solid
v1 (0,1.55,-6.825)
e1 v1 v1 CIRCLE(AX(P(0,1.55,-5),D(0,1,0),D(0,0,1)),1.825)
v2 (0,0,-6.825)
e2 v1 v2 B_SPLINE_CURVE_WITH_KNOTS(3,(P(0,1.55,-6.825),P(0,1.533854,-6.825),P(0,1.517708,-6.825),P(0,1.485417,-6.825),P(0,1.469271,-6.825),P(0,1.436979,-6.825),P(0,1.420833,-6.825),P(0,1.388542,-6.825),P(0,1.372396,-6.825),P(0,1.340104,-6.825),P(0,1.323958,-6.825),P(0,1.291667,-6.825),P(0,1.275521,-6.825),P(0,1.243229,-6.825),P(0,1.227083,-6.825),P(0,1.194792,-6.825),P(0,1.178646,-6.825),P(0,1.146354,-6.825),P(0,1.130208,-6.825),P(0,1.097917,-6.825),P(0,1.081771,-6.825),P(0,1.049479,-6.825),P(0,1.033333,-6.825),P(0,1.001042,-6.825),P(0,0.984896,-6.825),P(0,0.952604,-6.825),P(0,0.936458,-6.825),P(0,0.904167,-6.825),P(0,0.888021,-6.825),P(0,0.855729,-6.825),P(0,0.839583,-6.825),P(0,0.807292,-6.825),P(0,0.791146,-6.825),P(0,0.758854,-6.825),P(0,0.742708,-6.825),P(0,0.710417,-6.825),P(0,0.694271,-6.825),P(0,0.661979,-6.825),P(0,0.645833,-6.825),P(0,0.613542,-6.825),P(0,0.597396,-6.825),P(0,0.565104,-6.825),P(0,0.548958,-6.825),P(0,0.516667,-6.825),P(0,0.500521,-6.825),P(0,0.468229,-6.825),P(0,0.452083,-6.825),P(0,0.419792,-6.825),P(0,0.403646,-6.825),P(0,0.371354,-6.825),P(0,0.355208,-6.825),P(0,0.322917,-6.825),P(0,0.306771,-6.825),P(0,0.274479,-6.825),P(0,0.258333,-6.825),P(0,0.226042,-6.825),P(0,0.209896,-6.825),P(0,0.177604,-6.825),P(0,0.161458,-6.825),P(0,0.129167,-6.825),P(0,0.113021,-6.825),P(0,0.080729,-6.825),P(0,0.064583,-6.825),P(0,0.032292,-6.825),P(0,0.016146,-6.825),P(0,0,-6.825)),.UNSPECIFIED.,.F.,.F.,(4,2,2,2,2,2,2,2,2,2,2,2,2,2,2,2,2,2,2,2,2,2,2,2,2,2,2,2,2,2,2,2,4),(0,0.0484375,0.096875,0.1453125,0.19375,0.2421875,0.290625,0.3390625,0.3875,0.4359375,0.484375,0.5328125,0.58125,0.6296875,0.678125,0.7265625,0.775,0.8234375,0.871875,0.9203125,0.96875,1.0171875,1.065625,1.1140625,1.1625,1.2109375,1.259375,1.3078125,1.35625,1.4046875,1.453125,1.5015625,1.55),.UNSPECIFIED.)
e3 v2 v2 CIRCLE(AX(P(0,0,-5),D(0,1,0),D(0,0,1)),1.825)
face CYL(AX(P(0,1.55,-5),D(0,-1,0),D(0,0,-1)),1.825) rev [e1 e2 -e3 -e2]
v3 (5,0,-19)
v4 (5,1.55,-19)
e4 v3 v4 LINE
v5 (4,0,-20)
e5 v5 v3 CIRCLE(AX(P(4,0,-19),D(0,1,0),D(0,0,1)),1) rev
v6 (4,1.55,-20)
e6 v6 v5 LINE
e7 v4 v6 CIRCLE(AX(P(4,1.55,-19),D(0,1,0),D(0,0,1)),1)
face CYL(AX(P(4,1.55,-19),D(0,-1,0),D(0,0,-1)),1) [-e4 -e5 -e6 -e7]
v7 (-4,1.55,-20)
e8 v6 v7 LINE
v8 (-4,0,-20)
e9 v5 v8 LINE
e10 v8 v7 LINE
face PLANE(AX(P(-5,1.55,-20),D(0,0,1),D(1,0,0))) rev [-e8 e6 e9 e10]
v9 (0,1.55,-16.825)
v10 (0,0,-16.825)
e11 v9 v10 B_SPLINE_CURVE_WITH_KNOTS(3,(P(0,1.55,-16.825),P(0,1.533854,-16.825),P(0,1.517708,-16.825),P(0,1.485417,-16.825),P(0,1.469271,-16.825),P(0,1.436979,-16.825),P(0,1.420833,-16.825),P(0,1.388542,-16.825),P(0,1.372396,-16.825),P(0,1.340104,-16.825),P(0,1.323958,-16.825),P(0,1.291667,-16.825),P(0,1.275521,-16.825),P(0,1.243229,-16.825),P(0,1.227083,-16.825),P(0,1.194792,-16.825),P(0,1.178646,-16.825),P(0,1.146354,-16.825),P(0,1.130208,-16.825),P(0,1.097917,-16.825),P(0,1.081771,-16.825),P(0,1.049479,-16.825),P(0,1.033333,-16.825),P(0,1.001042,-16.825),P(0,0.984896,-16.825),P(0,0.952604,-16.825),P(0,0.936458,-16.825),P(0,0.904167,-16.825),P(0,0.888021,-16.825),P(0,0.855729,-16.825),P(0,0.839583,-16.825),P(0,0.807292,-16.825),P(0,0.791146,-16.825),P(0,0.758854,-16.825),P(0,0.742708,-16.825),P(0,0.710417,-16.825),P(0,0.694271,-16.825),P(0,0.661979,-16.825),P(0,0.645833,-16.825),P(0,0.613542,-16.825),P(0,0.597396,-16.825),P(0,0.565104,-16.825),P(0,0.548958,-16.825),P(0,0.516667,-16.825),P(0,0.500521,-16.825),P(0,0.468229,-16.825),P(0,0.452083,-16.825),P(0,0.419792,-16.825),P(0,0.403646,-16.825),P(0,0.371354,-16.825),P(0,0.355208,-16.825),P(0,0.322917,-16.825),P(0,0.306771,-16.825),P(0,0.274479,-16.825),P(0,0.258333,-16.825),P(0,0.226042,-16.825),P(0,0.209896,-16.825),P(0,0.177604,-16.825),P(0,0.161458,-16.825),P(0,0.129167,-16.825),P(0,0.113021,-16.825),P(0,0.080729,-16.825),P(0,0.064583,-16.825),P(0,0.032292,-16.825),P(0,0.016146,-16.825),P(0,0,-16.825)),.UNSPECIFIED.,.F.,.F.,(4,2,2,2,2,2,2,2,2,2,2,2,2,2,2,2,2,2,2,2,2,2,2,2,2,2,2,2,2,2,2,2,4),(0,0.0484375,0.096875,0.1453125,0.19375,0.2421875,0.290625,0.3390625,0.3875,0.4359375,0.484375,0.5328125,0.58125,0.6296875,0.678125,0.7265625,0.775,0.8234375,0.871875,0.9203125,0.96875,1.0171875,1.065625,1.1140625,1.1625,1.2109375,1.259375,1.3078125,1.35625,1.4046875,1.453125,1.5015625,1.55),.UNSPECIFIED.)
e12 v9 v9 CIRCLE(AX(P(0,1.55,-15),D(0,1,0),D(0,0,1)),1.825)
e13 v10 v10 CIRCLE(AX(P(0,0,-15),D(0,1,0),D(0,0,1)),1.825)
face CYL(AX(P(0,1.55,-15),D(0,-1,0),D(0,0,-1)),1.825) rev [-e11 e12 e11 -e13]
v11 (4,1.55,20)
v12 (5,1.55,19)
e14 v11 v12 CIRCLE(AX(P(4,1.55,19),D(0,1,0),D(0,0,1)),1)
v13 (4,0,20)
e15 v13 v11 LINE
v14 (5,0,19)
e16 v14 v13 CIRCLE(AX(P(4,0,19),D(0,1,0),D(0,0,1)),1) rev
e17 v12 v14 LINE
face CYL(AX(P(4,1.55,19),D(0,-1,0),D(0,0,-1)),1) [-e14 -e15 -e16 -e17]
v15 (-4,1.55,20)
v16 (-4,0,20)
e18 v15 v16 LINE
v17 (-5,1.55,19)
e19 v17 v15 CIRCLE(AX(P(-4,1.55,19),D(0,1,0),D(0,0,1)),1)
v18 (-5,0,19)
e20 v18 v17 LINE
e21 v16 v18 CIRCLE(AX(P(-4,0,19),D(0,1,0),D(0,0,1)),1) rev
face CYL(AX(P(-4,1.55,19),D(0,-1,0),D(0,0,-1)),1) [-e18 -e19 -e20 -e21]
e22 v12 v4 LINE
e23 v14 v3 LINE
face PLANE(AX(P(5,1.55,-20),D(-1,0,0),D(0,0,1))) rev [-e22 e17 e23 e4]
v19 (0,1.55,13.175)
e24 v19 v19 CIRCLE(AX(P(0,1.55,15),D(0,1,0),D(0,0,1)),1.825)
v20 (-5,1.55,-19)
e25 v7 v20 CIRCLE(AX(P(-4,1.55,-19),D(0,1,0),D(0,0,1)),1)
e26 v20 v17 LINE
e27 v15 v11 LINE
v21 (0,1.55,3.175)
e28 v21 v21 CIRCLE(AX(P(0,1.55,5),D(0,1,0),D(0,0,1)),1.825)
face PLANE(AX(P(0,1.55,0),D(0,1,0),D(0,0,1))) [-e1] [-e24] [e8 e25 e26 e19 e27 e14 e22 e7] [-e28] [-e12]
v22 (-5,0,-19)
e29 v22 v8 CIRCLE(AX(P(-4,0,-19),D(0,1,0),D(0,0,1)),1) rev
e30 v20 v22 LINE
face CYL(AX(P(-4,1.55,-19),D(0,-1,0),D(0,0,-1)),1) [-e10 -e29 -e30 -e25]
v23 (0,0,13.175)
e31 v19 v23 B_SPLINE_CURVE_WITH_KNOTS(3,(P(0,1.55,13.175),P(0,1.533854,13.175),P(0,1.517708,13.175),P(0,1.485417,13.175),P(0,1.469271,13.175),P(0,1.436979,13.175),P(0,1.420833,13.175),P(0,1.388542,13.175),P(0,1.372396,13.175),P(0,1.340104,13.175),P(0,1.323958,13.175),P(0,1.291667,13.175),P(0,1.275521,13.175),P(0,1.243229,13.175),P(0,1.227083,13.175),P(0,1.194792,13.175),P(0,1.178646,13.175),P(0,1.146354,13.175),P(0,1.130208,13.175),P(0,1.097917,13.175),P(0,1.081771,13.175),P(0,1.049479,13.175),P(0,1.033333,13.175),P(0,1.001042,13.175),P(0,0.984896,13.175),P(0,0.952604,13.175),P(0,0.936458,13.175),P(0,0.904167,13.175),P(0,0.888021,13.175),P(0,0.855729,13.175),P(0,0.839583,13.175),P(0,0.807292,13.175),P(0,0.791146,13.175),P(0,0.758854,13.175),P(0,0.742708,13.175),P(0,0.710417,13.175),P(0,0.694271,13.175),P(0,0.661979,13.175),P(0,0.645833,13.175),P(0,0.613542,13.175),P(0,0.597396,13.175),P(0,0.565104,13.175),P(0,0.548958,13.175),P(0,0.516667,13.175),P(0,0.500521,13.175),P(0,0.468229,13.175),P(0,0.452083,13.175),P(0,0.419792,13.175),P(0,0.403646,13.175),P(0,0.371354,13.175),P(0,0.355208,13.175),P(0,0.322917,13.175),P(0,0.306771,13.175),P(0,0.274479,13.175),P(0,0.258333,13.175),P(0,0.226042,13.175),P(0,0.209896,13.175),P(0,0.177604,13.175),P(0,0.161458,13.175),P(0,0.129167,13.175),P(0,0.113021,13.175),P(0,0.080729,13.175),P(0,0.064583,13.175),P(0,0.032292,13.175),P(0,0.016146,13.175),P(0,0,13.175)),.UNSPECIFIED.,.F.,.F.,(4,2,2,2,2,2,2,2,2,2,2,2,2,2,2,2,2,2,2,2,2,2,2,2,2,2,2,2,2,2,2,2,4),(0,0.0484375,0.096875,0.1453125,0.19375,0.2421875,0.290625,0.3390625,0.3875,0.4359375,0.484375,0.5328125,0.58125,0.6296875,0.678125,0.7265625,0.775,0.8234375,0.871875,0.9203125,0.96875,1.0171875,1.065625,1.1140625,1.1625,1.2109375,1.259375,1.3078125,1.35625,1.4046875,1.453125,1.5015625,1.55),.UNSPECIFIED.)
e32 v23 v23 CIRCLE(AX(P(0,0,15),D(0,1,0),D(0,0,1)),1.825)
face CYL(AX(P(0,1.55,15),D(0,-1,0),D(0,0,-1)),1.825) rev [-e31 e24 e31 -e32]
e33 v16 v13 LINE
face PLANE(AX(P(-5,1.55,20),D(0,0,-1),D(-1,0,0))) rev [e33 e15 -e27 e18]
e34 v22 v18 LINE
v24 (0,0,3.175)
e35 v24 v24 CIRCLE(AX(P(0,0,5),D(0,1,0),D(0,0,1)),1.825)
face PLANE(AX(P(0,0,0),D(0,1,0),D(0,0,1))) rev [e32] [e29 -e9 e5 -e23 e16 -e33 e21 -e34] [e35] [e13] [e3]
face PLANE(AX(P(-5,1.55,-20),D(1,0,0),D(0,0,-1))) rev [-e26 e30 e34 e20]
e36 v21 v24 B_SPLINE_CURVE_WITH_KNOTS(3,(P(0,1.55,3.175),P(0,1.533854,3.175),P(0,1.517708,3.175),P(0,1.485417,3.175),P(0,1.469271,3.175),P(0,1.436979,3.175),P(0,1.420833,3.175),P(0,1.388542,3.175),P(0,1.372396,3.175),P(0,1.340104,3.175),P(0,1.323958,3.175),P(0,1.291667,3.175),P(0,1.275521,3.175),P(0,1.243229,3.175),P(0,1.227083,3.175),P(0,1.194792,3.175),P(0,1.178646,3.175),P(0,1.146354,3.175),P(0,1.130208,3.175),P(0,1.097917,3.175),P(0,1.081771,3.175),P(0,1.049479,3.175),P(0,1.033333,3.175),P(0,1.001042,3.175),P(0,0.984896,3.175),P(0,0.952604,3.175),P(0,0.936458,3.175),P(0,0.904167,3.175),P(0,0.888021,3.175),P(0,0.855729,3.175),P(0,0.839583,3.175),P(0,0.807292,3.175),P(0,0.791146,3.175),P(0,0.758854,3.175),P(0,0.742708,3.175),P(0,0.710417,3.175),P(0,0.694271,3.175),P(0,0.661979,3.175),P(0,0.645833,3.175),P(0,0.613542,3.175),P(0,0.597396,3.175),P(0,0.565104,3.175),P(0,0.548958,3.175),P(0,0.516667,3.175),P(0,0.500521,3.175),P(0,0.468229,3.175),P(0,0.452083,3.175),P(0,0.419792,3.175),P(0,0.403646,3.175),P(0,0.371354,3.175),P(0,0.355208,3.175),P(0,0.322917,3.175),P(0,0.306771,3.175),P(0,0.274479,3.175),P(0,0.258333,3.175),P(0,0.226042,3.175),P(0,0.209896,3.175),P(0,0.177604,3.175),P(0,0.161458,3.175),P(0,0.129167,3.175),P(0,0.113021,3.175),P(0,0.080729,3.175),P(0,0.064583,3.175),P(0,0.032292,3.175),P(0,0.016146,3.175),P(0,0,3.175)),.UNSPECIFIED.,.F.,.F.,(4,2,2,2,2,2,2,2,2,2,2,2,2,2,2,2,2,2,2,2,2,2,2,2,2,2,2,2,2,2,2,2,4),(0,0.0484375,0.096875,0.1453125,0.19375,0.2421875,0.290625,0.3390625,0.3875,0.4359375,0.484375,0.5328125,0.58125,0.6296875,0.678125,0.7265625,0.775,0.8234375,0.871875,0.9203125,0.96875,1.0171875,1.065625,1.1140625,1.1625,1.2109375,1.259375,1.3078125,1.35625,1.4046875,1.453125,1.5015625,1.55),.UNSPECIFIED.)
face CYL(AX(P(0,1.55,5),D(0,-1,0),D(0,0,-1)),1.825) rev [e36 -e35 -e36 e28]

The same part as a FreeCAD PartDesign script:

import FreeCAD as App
import Part
import Sketcher
from FreeCAD import Vector
Q = App.Units.Quantity


def edges_at(feature, points):
    """Names of the edges that pass closest to the given points."""
    edges = feature.Shape.Edges
    near = lambda p: min(range(len(edges)), key=lambda i: edges[i].distToShape(Part.Vertex(*p))[0])
    return sorted({f"Edge{near(p) + 1}" for p in points})

doc = App.newDocument("Part")
body = doc.addObject("PartDesign::Body", "Body")

# Sketch on XZ plane
sketch1 = body.newObject("Sketcher::SketchObject", "Sketch")
sketch1.AttachmentSupport = (doc.getObject("XZ_Plane"), [""])
sketch1.MapMode = "FlatFace"
sketch1.addGeometry([
    Part.LineSegment(Vector(-5, -20, 0), Vector(-5, 20, 0)),  # 0
    Part.LineSegment(Vector(-5, 20, 0), Vector(5, 20, 0)),  # 1
    Part.LineSegment(Vector(5, 20, 0), Vector(5, -20, 0)),  # 2
    Part.LineSegment(Vector(5, -20, 0), Vector(-5, -20, 0)),  # 3
    Part.Circle(Vector(0, 15, 0), Vector(0, 0, 1), 1.8),  # 4
    Part.Circle(Vector(0, 5, 0), Vector(0, 0, 1), 1.8),  # 5
    Part.Circle(Vector(0, -5, 0), Vector(0, 0, 1), 1.8),  # 6
    Part.Circle(Vector(0, -15, 0), Vector(0, 0, 1), 1.8),  # 7
], False)
sketch1.addConstraint([
    Sketcher.Constraint("Coincident", 0, 2, 1, 1),
    Sketcher.Constraint("Coincident", 1, 2, 2, 1),
    Sketcher.Constraint("Coincident", 2, 2, 3, 1),
    Sketcher.Constraint("Coincident", 3, 2, 0, 1),
    Sketcher.Constraint("Vertical", 0),
    Sketcher.Constraint("Horizontal", 1),
    Sketcher.Constraint("Vertical", 2),
    Sketcher.Constraint("Horizontal", 3),
    Sketcher.Constraint("Equal", 4, 5),
    Sketcher.Constraint("Equal", 5, 6),
    Sketcher.Constraint("Equal", 6, 7),
    Sketcher.Constraint("Symmetric", 5, 3, 6, 3, -1, 1),
    Sketcher.Constraint("Symmetric", 4, 3, 7, 3, -1, 1),
    Sketcher.Constraint("Symmetric", 0, 2, 2, 2, -1, 1),
    Sketcher.Constraint("PointOnObject", 4, 3, -2),
    Sketcher.Constraint("PointOnObject", 5, 3, -2),
    Sketcher.Constraint("Diameter", 4, Q("3.65 mm")),
    Sketcher.Constraint("DistanceX", 1, 1, 1, 2, Q("10 mm")),
    Sketcher.Constraint("DistanceY", 0, 1, 0, 2, Q("40 mm")),
    Sketcher.Constraint("DistanceY", -1, 1, 4, 3, Q("15 mm")),
    Sketcher.Constraint("DistanceY", -1, 1, 5, 3, Q("5 mm")),
])
pad1 = body.newObject("PartDesign::Pad", "Pad")
pad1.Profile = sketch1
pad1.Length = 1.55
pad1.Reversed = True
doc.recompute()

fillet = body.newObject("PartDesign::Fillet", "Fillet")
fillet.Base = (pad1, edges_at(pad1, [
    (5, 0.775, 20),
    (-5, 0.775, 20),
    (-5, 0.775, -20),
    (5, 0.775, -20),
]))
fillet.Radius = 1

doc.recompute()
